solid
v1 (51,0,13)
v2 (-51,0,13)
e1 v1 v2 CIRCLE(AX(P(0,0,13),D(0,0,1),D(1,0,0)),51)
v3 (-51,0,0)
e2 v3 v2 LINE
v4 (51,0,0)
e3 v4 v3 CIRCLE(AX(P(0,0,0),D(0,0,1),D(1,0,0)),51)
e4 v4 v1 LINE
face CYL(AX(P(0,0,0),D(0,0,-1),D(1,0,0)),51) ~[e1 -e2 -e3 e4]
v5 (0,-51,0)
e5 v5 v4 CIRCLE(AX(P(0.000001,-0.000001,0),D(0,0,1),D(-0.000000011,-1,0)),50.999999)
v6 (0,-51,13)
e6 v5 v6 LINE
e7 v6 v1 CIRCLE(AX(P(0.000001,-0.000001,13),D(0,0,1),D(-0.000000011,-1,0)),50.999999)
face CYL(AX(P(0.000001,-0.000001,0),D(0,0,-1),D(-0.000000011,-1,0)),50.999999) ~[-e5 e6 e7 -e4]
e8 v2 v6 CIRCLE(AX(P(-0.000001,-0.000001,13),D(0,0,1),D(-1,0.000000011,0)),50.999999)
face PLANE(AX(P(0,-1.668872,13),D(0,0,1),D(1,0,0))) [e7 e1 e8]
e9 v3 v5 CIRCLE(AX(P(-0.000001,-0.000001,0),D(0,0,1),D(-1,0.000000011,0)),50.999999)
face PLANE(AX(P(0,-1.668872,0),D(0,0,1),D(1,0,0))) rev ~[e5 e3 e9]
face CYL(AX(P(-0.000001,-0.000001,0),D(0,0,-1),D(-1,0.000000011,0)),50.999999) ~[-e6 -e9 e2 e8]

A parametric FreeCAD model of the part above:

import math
import FreeCAD as App
import Part
import Sketcher

V = App.Vector

doc = App.newDocument("Part")
body = doc.addObject("PartDesign::Body", "Body")

sketch1 = body.newObject("Sketcher::SketchObject", "Sketch")
sketch1.AttachmentSupport = (doc.getObject("XY_Plane"), [""])
sketch1.MapMode = "FlatFace"
sketch1.addGeometry([
    Part.ArcOfCircle(Part.Circle(V(0, 0, 0), V(0, 0, 1), 51), math.radians(-90), math.radians(0)),
    Part.ArcOfCircle(Part.Circle(V(0, 0, 0), V(0, 0, 1), 51), math.radians(0), math.radians(180)),
    Part.ArcOfCircle(Part.Circle(V(0, 0, 0), V(0, 0, 1), 51), math.radians(180), math.radians(270)),
], False)
sketch1.addConstraint([
    Sketcher.Constraint("Tangent", 0, 2, 1, 1),
    Sketcher.Constraint("Tangent", 1, 2, 2, 1),
    Sketcher.Constraint("Tangent", 2, 2, 0, 1),
    Sketcher.Constraint("Coincident", 0, 3, -1, 1),
    Sketcher.Constraint("PointOnObject", 0, 2, -1),
    Sketcher.Constraint("PointOnObject", 1, 2, -1),
    Sketcher.Constraint("PointOnObject", 2, 2, -2),
    Sketcher.Constraint("Radius", 0, 50.999999),
])
pad1 = body.newObject("PartDesign::Pad", "Pad")
pad1.Profile = sketch1
pad1.Length = 13

doc.recompute()
